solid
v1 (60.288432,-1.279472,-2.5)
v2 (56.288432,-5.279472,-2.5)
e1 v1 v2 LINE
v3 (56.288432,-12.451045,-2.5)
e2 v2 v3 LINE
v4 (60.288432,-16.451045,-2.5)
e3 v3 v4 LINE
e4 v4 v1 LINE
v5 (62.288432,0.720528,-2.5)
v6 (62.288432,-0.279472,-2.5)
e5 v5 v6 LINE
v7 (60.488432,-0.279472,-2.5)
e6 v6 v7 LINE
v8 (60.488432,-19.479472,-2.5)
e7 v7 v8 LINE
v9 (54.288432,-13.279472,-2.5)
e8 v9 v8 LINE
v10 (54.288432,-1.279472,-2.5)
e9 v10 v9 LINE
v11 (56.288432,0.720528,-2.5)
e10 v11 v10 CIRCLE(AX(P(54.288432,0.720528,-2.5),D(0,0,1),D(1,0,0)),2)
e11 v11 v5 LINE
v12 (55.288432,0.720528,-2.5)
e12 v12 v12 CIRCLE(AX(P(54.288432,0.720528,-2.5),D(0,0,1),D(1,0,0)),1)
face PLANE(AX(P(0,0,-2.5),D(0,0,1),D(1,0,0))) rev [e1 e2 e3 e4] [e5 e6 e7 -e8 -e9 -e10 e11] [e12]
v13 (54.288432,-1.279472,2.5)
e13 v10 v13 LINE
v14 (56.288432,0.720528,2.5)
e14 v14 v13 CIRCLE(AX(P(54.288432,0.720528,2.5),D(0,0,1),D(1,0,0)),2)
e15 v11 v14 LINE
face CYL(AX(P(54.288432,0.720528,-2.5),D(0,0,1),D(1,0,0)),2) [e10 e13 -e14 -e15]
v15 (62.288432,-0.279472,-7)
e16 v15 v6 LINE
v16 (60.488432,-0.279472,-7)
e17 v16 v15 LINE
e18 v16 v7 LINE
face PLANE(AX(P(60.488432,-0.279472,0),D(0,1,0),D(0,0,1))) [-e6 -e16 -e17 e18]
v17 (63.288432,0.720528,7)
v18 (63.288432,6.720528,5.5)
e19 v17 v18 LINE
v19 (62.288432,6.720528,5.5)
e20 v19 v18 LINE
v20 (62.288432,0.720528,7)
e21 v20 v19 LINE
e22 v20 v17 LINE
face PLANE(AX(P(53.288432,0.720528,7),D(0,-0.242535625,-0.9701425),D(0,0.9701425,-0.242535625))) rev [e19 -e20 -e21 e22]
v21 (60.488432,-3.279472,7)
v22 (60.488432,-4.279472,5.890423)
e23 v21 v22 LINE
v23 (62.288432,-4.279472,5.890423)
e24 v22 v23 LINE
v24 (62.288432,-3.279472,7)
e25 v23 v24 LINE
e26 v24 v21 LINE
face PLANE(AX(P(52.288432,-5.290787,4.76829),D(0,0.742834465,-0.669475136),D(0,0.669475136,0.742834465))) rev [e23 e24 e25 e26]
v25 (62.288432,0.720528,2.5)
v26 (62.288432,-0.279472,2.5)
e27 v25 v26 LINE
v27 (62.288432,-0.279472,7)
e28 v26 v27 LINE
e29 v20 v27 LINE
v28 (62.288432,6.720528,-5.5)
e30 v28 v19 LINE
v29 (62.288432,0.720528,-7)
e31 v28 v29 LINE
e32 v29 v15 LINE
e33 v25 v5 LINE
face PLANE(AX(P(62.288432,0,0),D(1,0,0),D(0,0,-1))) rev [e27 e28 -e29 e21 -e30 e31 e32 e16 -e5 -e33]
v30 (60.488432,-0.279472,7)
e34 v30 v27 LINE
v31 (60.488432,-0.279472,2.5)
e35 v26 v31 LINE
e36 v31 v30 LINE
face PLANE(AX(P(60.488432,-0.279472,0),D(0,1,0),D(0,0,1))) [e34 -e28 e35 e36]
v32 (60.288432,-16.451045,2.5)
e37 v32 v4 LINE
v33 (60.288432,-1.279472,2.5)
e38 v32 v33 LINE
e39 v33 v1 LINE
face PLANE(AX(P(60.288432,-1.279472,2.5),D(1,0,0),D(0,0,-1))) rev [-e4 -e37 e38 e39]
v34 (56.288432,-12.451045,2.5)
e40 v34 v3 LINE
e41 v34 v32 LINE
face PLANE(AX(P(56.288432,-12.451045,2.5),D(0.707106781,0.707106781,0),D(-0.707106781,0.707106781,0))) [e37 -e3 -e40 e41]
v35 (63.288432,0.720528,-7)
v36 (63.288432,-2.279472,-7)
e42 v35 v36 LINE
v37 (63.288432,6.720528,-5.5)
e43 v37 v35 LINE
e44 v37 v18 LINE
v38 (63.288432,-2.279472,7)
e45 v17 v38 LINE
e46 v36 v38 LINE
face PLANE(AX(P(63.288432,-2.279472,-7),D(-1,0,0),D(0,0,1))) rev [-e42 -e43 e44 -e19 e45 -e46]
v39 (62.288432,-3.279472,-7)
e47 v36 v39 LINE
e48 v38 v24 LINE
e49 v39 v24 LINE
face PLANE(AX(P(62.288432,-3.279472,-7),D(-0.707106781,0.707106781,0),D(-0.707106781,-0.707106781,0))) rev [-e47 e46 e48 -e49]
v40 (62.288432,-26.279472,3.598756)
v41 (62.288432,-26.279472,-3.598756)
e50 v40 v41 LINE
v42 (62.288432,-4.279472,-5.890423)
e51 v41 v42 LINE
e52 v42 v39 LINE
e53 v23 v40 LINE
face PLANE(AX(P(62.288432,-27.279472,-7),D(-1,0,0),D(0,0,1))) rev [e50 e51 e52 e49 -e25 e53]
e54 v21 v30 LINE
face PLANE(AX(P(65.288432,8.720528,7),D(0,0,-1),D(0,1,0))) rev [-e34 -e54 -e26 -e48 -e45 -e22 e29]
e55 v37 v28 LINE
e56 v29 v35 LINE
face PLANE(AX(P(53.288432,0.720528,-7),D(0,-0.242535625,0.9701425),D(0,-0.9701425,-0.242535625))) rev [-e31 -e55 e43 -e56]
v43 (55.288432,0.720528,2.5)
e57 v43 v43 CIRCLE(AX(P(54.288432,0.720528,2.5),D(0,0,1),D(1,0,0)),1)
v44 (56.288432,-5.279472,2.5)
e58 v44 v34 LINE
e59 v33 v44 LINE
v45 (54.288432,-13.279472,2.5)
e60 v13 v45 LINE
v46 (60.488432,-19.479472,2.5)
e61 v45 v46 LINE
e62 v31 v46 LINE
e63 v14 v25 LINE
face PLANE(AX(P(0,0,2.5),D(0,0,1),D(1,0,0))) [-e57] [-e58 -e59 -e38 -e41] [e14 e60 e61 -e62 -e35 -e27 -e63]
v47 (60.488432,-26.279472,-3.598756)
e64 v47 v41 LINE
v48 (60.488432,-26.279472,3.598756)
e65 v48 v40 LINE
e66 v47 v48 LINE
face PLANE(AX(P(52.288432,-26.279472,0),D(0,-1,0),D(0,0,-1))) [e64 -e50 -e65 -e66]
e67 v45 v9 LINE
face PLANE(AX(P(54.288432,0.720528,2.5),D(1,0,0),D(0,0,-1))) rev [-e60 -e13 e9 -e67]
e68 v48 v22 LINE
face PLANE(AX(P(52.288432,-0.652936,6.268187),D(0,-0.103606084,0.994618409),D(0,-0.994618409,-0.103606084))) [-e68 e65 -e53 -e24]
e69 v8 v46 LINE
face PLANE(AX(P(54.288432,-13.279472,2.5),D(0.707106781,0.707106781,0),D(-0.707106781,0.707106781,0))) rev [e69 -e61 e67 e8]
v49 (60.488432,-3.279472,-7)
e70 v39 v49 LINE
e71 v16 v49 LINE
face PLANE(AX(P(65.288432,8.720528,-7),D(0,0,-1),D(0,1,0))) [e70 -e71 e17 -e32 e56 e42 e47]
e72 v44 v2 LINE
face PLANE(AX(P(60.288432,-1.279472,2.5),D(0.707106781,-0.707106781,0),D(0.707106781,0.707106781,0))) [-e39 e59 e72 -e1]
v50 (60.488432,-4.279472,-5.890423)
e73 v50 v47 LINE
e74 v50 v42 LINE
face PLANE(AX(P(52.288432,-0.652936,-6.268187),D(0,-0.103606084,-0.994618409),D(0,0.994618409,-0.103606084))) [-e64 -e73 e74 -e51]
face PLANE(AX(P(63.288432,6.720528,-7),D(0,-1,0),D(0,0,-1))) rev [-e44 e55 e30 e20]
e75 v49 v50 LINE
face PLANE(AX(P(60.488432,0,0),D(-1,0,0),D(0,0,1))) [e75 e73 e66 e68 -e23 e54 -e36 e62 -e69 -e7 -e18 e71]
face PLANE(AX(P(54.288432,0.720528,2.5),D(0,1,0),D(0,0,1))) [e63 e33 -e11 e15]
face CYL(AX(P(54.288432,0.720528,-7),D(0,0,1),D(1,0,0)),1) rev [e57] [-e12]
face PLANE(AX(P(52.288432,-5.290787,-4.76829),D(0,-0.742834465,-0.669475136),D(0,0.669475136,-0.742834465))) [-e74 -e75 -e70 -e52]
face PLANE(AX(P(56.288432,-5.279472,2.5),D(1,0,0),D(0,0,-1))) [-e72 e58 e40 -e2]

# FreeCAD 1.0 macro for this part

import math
import FreeCAD as App
import Part
import Sketcher

V = App.Vector


def add_polygon(sketch, points):
    """Adds a closed chain of lines whose ends are joined by coincident constraints."""
    first, n = sketch.GeometryCount, len(points)
    for a, b in zip(points, points[1:] + points[:1]):
        sketch.addGeometry(Part.LineSegment(App.Vector(*a, 0), App.Vector(*b, 0)), False)
    for i in range(n):
        sketch.addConstraint(Sketcher.Constraint("Coincident", first + i, 2, first + (i + 1) % n, 1))

doc = App.newDocument("Part")
body = doc.addObject("PartDesign::Body", "Body")

# Sketch on XY plane
sketch1 = body.newObject("Sketcher::SketchObject", "Sketch")
sketch1.AttachmentSupport = (doc.getObject("XY_Plane"), [""])
sketch1.MapMode = "FlatFace"
sketch1.addGeometry(Part.ArcOfCircle(Part.Circle(V(54.3, 0.7, 0), V(0, 0, 1), 2), math.radians(0), math.radians(270)), False)  # 0
sketch1.addGeometry(Part.LineSegment(V(54.3, -1.3, 0), V(54.3, -13.3, 0)), False)  # 1
sketch1.addGeometry(Part.LineSegment(V(54.3, -13.3, 0), V(62.3, -21.3, 0)), False)  # 2
sketch1.addGeometry(Part.LineSegment(V(62.3, -21.3, 0), V(62.3, 0.7, 0)), False)  # 3
sketch1.addGeometry(Part.LineSegment(V(62.3, 0.7, 0), V(56.3, 0.7, 0)), False)  # 4
add_polygon(sketch1, [(60.3, -1.3), (60.3, -16.5), (56.3, -12.5), (56.3, -5.3)])  # lines 5-8
sketch1.addConstraint(Sketcher.Constraint("Coincident", 0, 2, 1, 1))
sketch1.addConstraint(Sketcher.Constraint("Coincident", 1, 2, 2, 1))
sketch1.addConstraint(Sketcher.Constraint("Coincident", 2, 2, 3, 1))
sketch1.addConstraint(Sketcher.Constraint("Coincident", 3, 2, 4, 1))
sketch1.addConstraint(Sketcher.Constraint("Coincident", 4, 2, 0, 1))
sketch1.addConstraint(Sketcher.Constraint("Vertical", 1))
sketch1.addConstraint(Sketcher.Constraint("Vertical", 3))
sketch1.addConstraint(Sketcher.Constraint("Horizontal", 4))
sketch1.addConstraint(Sketcher.Constraint("Vertical", 5))
sketch1.addConstraint(Sketcher.Constraint("Vertical", 7))
sketch1.addConstraint(Sketcher.Constraint("Parallel", 2, 6))
sketch1.addConstraint(Sketcher.Constraint("Perpendicular", 6, 8))
sketch1.addConstraint(Sketcher.Constraint("Horizontal", 0, 3, 3, 2))
sketch1.addConstraint(Sketcher.Constraint("Horizontal", 0, 2, 8, 2))
sketch1.addConstraint(Sketcher.Constraint("Vertical", 4, 2, 6, 2))
sketch1.addConstraint(Sketcher.Constraint("Equal", 6, 8))
sketch1.addConstraint(Sketcher.Constraint("Radius", 0, 2.0))
sketch1.addConstraint(Sketcher.Constraint("DistanceX", 4, 2, 4, 1, 6.0))
sketch1.addConstraint(Sketcher.Constraint("DistanceY", 1, 2, 1, 1, 12.0))
sketch1.addConstraint(Sketcher.Constraint("DistanceY", 3, 1, 3, 2, 22.0))
sketch1.addConstraint(Sketcher.Constraint("DistanceX", 5, 2, 2, 2, 2.0))
sketch1.addConstraint(Sketcher.Constraint("DistanceY", 5, 2, 5, 1, 15.171573))
sketch1.addConstraint(Sketcher.Constraint("DistanceX", -1, 1, 0, 3, 54.288432))
sketch1.addConstraint(Sketcher.Constraint("DistanceY", -1, 1, 0, 3, 0.720528))
pad1 = body.newObject("PartDesign::Pad", "Pad")
pad1.Profile = sketch1
pad1.Type = "TwoLengths"
pad1.Length = 2.5
pad1.Length2 = 2.5

# Sketch on YZ plane
sketch2 = body.newObject("Sketcher::SketchObject", "Sketch001")
sketch2.AttachmentSupport = (doc.getObject("YZ_Plane"), [""])
sketch2.MapMode = "FlatFace"
sketch2.AttachmentOffset = App.Placement(V(0, 0, 62.288432), App.Rotation())
add_polygon(sketch2, [(-3, 7), (-27, 4), (-27, -4), (-3, -7), (9, -7), (9, 7)])  # lines 0-5
sketch2.addConstraint(Sketcher.Constraint("Vertical", 1))
sketch2.addConstraint(Sketcher.Constraint("Horizontal", 3))
sketch2.addConstraint(Sketcher.Constraint("Vertical", 4))
sketch2.addConstraint(Sketcher.Constraint("Horizontal", 5))
sketch2.addConstraint(Sketcher.Constraint("Symmetric", 2, 2, 5, 2, -1))
sketch2.addConstraint(Sketcher.Constraint("Equal", 0, 2))
sketch2.addConstraint(Sketcher.Constraint("DistanceX", 3, 1, 3, 2, 12.0))
sketch2.addConstraint(Sketcher.Constraint("DistanceY", 1, 2, 1, 1, 9.0))
sketch2.addConstraint(Sketcher.Constraint("DistanceY", 4, 1, 4, 2, 14.0))
sketch2.addConstraint(Sketcher.Constraint("DistanceX", 1, 2, 2, 2, 24.0))
sketch2.addConstraint(Sketcher.Constraint("DistanceX", 0, 2, -1, 1, 27.279472))
pad2 = body.newObject("PartDesign::Pad", "Pad001")
pad2.Profile = sketch2
pad2.Length = 3

# Sketch on YZ plane
sketch3 = body.newObject("Sketcher::SketchObject", "Sketch002")
sketch3.AttachmentSupport = (doc.getObject("YZ_Plane"), [""])
sketch3.MapMode = "FlatFace"
sketch3.AttachmentOffset = App.Placement(V(0, 0, 62.288432), App.Rotation())
add_polygon(sketch3, [(-0.3, -7), (-3.3, -7), (-27.3, -4.5), (-27.3, 4.5), (-3.3, 7), (-0.3, 7)])  # lines 0-5
sketch3.addConstraint(Sketcher.Constraint("Horizontal", 0))
sketch3.addConstraint(Sketcher.Constraint("Vertical", 2))
sketch3.addConstraint(Sketcher.Constraint("Horizontal", 4))
sketch3.addConstraint(Sketcher.Constraint("Vertical", 5))
sketch3.addConstraint(Sketcher.Constraint("Symmetric", 0, 2, 3, 2, -1))
sketch3.addConstraint(Sketcher.Constraint("Equal", 1, 3))
sketch3.addConstraint(Sketcher.Constraint("DistanceX", 0, 2, 0, 1, 3.0))
sketch3.addConstraint(Sketcher.Constraint("DistanceY", 2, 1, 2, 2, 9.0))
sketch3.addConstraint(Sketcher.Constraint("DistanceY", 5, 2, 5, 1, 14.0))
sketch3.addConstraint(Sketcher.Constraint("DistanceX", 1, 2, 0, 2, 24.0))
sketch3.addConstraint(Sketcher.Constraint("DistanceX", 0, 2, -1, 1, 3.279472))
pad3 = body.newObject("PartDesign::Pad", "Pad002")
pad3.Profile = sketch3
pad3.Length = 1.8
pad3.Reversed = True

# Sketch on XY plane
sketch4 = body.newObject("Sketcher::SketchObject", "Sketch003")
sketch4.AttachmentSupport = (doc.getObject("XY_Plane"), [""])
sketch4.MapMode = "FlatFace"
add_polygon(sketch4, [(62.3, -3.3), (62.3, -27.3), (65.3, -27.3), (65.3, 8.7), (62.3, 8.7), (62.3, 6.7), (63.3, 6.7), (63.3, -2.3)])  # lines 0-7
sketch4.addConstraint(Sketcher.Constraint("Vertical", 0))
sketch4.addConstraint(Sketcher.Constraint("Horizontal", 1))
sketch4.addConstraint(Sketcher.Constraint("Vertical", 2))
sketch4.addConstraint(Sketcher.Constraint("Horizontal", 3))
sketch4.addConstraint(Sketcher.Constraint("Vertical", 4))
sketch4.addConstraint(Sketcher.Constraint("Horizontal", 5))
sketch4.addConstraint(Sketcher.Constraint("Vertical", 6))
sketch4.addConstraint(Sketcher.Constraint("Vertical", 0, 2, 3, 2))
sketch4.addConstraint(Sketcher.Constraint("DistanceX", 1, 1, 1, 2, 3.0))
sketch4.addConstraint(Sketcher.Constraint("DistanceX", 5, 1, 5, 2, 1.0))
sketch4.addConstraint(Sketcher.Constraint("DistanceY", 0, 2, 0, 1, 24.0))
sketch4.addConstraint(Sketcher.Constraint("DistanceY", 2, 1, 2, 2, 36.0))
sketch4.addConstraint(Sketcher.Constraint("DistanceY", 4, 2, 4, 1, 2.0))
sketch4.addConstraint(Sketcher.Constraint("DistanceY", 6, 2, 6, 1, 9.0))
sketch4.addConstraint(Sketcher.Constraint("DistanceX", -1, 1, 0, 2, 62.288432))
sketch4.addConstraint(Sketcher.Constraint("DistanceY", 0, 2, -1, 1, 27.279472))
pocket1 = body.newObject("PartDesign::Pocket", "Pocket")
pocket1.Profile = sketch4
pocket1.Type = "ThroughAll"
pocket1.Midplane = True

# Sketch on YZ plane
sketch5 = body.newObject("Sketcher::SketchObject", "Sketch004")
sketch5.AttachmentSupport = (doc.getObject("YZ_Plane"), [""])
sketch5.MapMode = "FlatFace"
sketch5.AttachmentOffset = App.Placement(V(0, 0, 62.288432), App.Rotation())
add_polygon(sketch5, [(-26.3, 3.6), (-4.3, 5.9), (-3.3, 7), (-27.3, 4.5), (-27.3, -4.5), (-3.3, -7), (-4.3, -5.9), (-26.3, -3.6)])  # lines 0-7
sketch5.addConstraint(Sketcher.Constraint("Vertical", 3))
sketch5.addConstraint(Sketcher.Constraint("Vertical", 7))
sketch5.addConstraint(Sketcher.Constraint("Symmetric", 1, 2, 4, 2, -1))
sketch5.addConstraint(Sketcher.Constraint("Symmetric", 0, 2, 5, 2, -1))
sketch5.addConstraint(Sketcher.Constraint("Parallel", 0, 2))
sketch5.addConstraint(Sketcher.Constraint("Parallel", 4, 6))
sketch5.addConstraint(Sketcher.Constraint("Equal", 2, 4))
sketch5.addConstraint(Sketcher.Constraint("DistanceY", 3, 2, 3, 1, 9.0))
sketch5.addConstraint(Sketcher.Constraint("DistanceY", -1, 1, 1, 2, 7.0))
sketch5.addConstraint(Sketcher.Constraint("DistanceX", 0, 2, 1, 2, 1.0))
sketch5.addConstraint(Sketcher.Constraint("DistanceX", 2, 2, 0, 2, 23.0))
sketch5.addConstraint(Sketcher.Constraint("DistanceX", 3, 2, 6, 2, 1.0))
sketch5.addConstraint(Sketcher.Constraint("DistanceY", 7, 1, 7, 2, 7.197512))
sketch5.addConstraint(Sketcher.Constraint("DistanceX", 0, 2, -1, 1, 4.279472))
pocket2 = body.newObject("PartDesign::Pocket", "Pocket001")
pocket2.Profile = sketch5
pocket2.Type = "ThroughAll"

# Sketch on YZ plane
sketch6 = body.newObject("Sketcher::SketchObject", "Sketch005")
sketch6.AttachmentSupport = (doc.getObject("YZ_Plane"), [""])
sketch6.MapMode = "FlatFace"
sketch6.AttachmentOffset = App.Placement(V(0, 0, 63.288432), App.Rotation())
add_polygon(sketch6, [(0.7, 7), (6.7, 5.5), (6.7, 7)])  # lines 0-2
add_polygon(sketch6, [(6.7, -7), (6.7, -5.5), (0.7, -7)])  # lines 3-5
sketch6.addConstraint(Sketcher.Constraint("Vertical", 1))
sketch6.addConstraint(Sketcher.Constraint("Horizontal", 2))
sketch6.addConstraint(Sketcher.Constraint("Vertical", 3))
sketch6.addConstraint(Sketcher.Constraint("Horizontal", 5))
sketch6.addConstraint(Sketcher.Constraint("Symmetric", 0, 2, 3, 2, -1))
sketch6.addConstraint(Sketcher.Constraint("Symmetric", 2, 2, 4, 2, -1))
sketch6.addConstraint(Sketcher.Constraint("DistanceX", 2, 2, 2, 1, 6.0))
sketch6.addConstraint(Sketcher.Constraint("DistanceY", 1, 1, 1, 2, 1.5))
sketch6.addConstraint(Sketcher.Constraint("DistanceY", -1, 1, 1, 2, 7.0))
sketch6.addConstraint(Sketcher.Constraint("DistanceX", -1, 1, 0, 2, 6.720528))
pocket3 = body.newObject("PartDesign::Pocket", "Pocket002")
pocket3.Profile = sketch6
pocket3.Length = 10

# Sketch on XY plane
sketch7 = body.newObject("Sketcher::SketchObject", "Sketch006")
sketch7.AttachmentSupport = (doc.getObject("XY_Plane"), [""])
sketch7.MapMode = "FlatFace"
sketch7.AttachmentOffset = App.Placement(V(0, 0, 2.5), App.Rotation())
sketch7.addGeometry(Part.Circle(V(54.3, 0.7, 0), V(0, 0, 1), 1), False)
sketch7.addConstraint(Sketcher.Constraint("Diameter", 0, 2.0))
sketch7.addConstraint(Sketcher.Constraint("DistanceX", -1, 1, 0, 3, 54.288432))
sketch7.addConstraint(Sketcher.Constraint("DistanceY", -1, 1, 0, 3, 0.720528))
pocket4 = body.newObject("PartDesign::Pocket", "Pocket003")
pocket4.Profile = sketch7
pocket4.Type = "ThroughAll"

doc.recompute()
